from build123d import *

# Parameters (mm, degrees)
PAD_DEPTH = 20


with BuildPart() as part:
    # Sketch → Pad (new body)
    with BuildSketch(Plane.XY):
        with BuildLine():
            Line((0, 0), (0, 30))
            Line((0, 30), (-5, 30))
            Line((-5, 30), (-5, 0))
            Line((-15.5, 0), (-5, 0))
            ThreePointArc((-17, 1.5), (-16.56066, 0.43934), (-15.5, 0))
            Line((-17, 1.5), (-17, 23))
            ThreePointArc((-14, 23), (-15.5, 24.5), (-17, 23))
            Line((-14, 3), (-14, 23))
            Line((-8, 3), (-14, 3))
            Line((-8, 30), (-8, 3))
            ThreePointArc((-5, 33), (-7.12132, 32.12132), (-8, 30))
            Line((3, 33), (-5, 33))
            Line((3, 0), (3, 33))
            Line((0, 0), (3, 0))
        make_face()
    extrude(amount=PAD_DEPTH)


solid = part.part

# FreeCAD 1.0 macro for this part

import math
import FreeCAD as App
import Part
import Sketcher

doc = App.newDocument("Part")
params = doc.addObject("Spreadsheet::Sheet", "Params")
for row, (alias, value) in enumerate([
    ("sketch1_radius", "3.000001 mm"),
    ("sketch1_radius2", "1.5 mm"),
    ("sketch1_width", "3 mm"),
    ("sketch1_width2", "8 mm"),
    ("sketch1_width3", "6 mm"),
    ("pad1_length", "20 mm"),
], start=1):
    params.set(f"A{row}", alias)
    params.set(f"B{row}", "=" + value)
    params.setAlias(f"B{row}", alias)

body = doc.addObject("PartDesign::Body", "Body")

sketch1 = doc.addObject("Sketcher::SketchObject", "Sketch")
body.addObject(sketch1)
sketch1.AttachmentSupport = (doc.XY_Plane, [""])
sketch1.MapMode = "FlatFace"
sketch1.addGeometry([
    Part.LineSegment(App.Vector(0, 30, 0), App.Vector(0, 0, 0)),
    Part.LineSegment(App.Vector(0, 0, 0), App.Vector(3, 0, 0)),
    Part.LineSegment(App.Vector(3, 0, 0), App.Vector(3, 33, 0)),
    Part.LineSegment(App.Vector(3, 33, 0), App.Vector(-5, 33, 0)),
    Part.ArcOfCircle(Part.Circle(App.Vector(-4.999999, 29.999999, 0), App.Vector(0, 0, 1), 3.000001), math.radians(90.000022), math.radians(179.999978)),
    Part.LineSegment(App.Vector(-8, 30, 0), App.Vector(-8, 3, 0)),
    Part.LineSegment(App.Vector(-8, 3, 0), App.Vector(-14, 3, 0)),
    Part.LineSegment(App.Vector(-14, 3, 0), App.Vector(-14, 23, 0)),
    Part.ArcOfCircle(Part.Circle(App.Vector(-15.5, 23, 0), App.Vector(0, 0, 1), 1.5), math.radians(0), math.radians(180)),
    Part.LineSegment(App.Vector(-17, 23, 0), App.Vector(-17, 1.5, 0)),
    Part.ArcOfCircle(Part.Circle(App.Vector(-15.499999, 1.500001, 0), App.Vector(0, 0, 1), 1.500001), math.radians(-179.999978), math.radians(-90.000022)),
    Part.LineSegment(App.Vector(-15.5, 0, 0), App.Vector(-5, 0, 0)),
    Part.LineSegment(App.Vector(-5, 0, 0), App.Vector(-5, 30, 0)),
    Part.LineSegment(App.Vector(-5, 30, 0), App.Vector(0, 30, 0)),
], False)
sketch1.addConstraint([
    Sketcher.Constraint("Coincident", 0, 2, 1, 1),
    Sketcher.Constraint("Coincident", 1, 2, 2, 1),
    Sketcher.Constraint("Coincident", 2, 2, 3, 1),
    Sketcher.Constraint("Tangent", 3, 2, 4, 1),
    Sketcher.Constraint("Tangent", 4, 2, 5, 1),
    Sketcher.Constraint("Coincident", 5, 2, 6, 1),
    Sketcher.Constraint("Coincident", 6, 2, 7, 1),
    Sketcher.Constraint("Tangent", 7, 2, 8, 1),
    Sketcher.Constraint("Tangent", 8, 2, 9, 1),
    Sketcher.Constraint("Tangent", 9, 2, 10, 1),
    Sketcher.Constraint("Tangent", 10, 2, 11, 1),
    Sketcher.Constraint("Coincident", 11, 2, 12, 1),
    Sketcher.Constraint("Coincident", 12, 2, 13, 1),
    Sketcher.Constraint("Coincident", 13, 2, 0, 1),
    Sketcher.Constraint("Vertical", 0),
    Sketcher.Constraint("Horizontal", 1),
    Sketcher.Constraint("Vertical", 2),
    Sketcher.Constraint("Horizontal", 3),
    Sketcher.Constraint("Vertical", 5),
    Sketcher.Constraint("Horizontal", 6),
    Sketcher.Constraint("Vertical", 7),
    Sketcher.Constraint("Vertical", 9),
    Sketcher.Constraint("Horizontal", 11),
    Sketcher.Constraint("Vertical", 12),
    Sketcher.Constraint("Horizontal", 13),
    Sketcher.Constraint("Coincident", 0, 2, -1, 1),
    Sketcher.Constraint("Coincident", 12, 2, 4, 3),
    Sketcher.Constraint("Equal", 8, 10),
    Sketcher.Constraint("PointOnObject", 10, 2, -1),
    Sketcher.Constraint("Radius", 4, 3.000001),
    Sketcher.Constraint("Radius", 8, 1.5),
    Sketcher.Constraint("DistanceX", 1, 1, 1, 2, 3.0),
    Sketcher.Constraint("DistanceX", 3, 2, 3, 1, 8.0),
    Sketcher.Constraint("DistanceX", 6, 2, 6, 1, 6.0),
    Sketcher.Constraint("DistanceY", 0, 2, 0, 1, 30.0),
    Sketcher.Constraint("DistanceY", 5, 2, 5, 1, 27.0),
    Sketcher.Constraint("DistanceY", 7, 1, 7, 2, 20.0),
])
sketch1.setExpression("Constraints[29]", "Params.sketch1_radius")
sketch1.setExpression("Constraints[30]", "Params.sketch1_radius2")
sketch1.setExpression("Constraints[31]", "Params.sketch1_width")
sketch1.setExpression("Constraints[32]", "Params.sketch1_width2")
sketch1.setExpression("Constraints[33]", "Params.sketch1_width3")
pad1 = doc.addObject("PartDesign::Pad", "Pad")
body.addObject(pad1)
pad1.Profile = sketch1
pad1.setExpression("Length", "Params.pad1_length")

doc.recompute()
